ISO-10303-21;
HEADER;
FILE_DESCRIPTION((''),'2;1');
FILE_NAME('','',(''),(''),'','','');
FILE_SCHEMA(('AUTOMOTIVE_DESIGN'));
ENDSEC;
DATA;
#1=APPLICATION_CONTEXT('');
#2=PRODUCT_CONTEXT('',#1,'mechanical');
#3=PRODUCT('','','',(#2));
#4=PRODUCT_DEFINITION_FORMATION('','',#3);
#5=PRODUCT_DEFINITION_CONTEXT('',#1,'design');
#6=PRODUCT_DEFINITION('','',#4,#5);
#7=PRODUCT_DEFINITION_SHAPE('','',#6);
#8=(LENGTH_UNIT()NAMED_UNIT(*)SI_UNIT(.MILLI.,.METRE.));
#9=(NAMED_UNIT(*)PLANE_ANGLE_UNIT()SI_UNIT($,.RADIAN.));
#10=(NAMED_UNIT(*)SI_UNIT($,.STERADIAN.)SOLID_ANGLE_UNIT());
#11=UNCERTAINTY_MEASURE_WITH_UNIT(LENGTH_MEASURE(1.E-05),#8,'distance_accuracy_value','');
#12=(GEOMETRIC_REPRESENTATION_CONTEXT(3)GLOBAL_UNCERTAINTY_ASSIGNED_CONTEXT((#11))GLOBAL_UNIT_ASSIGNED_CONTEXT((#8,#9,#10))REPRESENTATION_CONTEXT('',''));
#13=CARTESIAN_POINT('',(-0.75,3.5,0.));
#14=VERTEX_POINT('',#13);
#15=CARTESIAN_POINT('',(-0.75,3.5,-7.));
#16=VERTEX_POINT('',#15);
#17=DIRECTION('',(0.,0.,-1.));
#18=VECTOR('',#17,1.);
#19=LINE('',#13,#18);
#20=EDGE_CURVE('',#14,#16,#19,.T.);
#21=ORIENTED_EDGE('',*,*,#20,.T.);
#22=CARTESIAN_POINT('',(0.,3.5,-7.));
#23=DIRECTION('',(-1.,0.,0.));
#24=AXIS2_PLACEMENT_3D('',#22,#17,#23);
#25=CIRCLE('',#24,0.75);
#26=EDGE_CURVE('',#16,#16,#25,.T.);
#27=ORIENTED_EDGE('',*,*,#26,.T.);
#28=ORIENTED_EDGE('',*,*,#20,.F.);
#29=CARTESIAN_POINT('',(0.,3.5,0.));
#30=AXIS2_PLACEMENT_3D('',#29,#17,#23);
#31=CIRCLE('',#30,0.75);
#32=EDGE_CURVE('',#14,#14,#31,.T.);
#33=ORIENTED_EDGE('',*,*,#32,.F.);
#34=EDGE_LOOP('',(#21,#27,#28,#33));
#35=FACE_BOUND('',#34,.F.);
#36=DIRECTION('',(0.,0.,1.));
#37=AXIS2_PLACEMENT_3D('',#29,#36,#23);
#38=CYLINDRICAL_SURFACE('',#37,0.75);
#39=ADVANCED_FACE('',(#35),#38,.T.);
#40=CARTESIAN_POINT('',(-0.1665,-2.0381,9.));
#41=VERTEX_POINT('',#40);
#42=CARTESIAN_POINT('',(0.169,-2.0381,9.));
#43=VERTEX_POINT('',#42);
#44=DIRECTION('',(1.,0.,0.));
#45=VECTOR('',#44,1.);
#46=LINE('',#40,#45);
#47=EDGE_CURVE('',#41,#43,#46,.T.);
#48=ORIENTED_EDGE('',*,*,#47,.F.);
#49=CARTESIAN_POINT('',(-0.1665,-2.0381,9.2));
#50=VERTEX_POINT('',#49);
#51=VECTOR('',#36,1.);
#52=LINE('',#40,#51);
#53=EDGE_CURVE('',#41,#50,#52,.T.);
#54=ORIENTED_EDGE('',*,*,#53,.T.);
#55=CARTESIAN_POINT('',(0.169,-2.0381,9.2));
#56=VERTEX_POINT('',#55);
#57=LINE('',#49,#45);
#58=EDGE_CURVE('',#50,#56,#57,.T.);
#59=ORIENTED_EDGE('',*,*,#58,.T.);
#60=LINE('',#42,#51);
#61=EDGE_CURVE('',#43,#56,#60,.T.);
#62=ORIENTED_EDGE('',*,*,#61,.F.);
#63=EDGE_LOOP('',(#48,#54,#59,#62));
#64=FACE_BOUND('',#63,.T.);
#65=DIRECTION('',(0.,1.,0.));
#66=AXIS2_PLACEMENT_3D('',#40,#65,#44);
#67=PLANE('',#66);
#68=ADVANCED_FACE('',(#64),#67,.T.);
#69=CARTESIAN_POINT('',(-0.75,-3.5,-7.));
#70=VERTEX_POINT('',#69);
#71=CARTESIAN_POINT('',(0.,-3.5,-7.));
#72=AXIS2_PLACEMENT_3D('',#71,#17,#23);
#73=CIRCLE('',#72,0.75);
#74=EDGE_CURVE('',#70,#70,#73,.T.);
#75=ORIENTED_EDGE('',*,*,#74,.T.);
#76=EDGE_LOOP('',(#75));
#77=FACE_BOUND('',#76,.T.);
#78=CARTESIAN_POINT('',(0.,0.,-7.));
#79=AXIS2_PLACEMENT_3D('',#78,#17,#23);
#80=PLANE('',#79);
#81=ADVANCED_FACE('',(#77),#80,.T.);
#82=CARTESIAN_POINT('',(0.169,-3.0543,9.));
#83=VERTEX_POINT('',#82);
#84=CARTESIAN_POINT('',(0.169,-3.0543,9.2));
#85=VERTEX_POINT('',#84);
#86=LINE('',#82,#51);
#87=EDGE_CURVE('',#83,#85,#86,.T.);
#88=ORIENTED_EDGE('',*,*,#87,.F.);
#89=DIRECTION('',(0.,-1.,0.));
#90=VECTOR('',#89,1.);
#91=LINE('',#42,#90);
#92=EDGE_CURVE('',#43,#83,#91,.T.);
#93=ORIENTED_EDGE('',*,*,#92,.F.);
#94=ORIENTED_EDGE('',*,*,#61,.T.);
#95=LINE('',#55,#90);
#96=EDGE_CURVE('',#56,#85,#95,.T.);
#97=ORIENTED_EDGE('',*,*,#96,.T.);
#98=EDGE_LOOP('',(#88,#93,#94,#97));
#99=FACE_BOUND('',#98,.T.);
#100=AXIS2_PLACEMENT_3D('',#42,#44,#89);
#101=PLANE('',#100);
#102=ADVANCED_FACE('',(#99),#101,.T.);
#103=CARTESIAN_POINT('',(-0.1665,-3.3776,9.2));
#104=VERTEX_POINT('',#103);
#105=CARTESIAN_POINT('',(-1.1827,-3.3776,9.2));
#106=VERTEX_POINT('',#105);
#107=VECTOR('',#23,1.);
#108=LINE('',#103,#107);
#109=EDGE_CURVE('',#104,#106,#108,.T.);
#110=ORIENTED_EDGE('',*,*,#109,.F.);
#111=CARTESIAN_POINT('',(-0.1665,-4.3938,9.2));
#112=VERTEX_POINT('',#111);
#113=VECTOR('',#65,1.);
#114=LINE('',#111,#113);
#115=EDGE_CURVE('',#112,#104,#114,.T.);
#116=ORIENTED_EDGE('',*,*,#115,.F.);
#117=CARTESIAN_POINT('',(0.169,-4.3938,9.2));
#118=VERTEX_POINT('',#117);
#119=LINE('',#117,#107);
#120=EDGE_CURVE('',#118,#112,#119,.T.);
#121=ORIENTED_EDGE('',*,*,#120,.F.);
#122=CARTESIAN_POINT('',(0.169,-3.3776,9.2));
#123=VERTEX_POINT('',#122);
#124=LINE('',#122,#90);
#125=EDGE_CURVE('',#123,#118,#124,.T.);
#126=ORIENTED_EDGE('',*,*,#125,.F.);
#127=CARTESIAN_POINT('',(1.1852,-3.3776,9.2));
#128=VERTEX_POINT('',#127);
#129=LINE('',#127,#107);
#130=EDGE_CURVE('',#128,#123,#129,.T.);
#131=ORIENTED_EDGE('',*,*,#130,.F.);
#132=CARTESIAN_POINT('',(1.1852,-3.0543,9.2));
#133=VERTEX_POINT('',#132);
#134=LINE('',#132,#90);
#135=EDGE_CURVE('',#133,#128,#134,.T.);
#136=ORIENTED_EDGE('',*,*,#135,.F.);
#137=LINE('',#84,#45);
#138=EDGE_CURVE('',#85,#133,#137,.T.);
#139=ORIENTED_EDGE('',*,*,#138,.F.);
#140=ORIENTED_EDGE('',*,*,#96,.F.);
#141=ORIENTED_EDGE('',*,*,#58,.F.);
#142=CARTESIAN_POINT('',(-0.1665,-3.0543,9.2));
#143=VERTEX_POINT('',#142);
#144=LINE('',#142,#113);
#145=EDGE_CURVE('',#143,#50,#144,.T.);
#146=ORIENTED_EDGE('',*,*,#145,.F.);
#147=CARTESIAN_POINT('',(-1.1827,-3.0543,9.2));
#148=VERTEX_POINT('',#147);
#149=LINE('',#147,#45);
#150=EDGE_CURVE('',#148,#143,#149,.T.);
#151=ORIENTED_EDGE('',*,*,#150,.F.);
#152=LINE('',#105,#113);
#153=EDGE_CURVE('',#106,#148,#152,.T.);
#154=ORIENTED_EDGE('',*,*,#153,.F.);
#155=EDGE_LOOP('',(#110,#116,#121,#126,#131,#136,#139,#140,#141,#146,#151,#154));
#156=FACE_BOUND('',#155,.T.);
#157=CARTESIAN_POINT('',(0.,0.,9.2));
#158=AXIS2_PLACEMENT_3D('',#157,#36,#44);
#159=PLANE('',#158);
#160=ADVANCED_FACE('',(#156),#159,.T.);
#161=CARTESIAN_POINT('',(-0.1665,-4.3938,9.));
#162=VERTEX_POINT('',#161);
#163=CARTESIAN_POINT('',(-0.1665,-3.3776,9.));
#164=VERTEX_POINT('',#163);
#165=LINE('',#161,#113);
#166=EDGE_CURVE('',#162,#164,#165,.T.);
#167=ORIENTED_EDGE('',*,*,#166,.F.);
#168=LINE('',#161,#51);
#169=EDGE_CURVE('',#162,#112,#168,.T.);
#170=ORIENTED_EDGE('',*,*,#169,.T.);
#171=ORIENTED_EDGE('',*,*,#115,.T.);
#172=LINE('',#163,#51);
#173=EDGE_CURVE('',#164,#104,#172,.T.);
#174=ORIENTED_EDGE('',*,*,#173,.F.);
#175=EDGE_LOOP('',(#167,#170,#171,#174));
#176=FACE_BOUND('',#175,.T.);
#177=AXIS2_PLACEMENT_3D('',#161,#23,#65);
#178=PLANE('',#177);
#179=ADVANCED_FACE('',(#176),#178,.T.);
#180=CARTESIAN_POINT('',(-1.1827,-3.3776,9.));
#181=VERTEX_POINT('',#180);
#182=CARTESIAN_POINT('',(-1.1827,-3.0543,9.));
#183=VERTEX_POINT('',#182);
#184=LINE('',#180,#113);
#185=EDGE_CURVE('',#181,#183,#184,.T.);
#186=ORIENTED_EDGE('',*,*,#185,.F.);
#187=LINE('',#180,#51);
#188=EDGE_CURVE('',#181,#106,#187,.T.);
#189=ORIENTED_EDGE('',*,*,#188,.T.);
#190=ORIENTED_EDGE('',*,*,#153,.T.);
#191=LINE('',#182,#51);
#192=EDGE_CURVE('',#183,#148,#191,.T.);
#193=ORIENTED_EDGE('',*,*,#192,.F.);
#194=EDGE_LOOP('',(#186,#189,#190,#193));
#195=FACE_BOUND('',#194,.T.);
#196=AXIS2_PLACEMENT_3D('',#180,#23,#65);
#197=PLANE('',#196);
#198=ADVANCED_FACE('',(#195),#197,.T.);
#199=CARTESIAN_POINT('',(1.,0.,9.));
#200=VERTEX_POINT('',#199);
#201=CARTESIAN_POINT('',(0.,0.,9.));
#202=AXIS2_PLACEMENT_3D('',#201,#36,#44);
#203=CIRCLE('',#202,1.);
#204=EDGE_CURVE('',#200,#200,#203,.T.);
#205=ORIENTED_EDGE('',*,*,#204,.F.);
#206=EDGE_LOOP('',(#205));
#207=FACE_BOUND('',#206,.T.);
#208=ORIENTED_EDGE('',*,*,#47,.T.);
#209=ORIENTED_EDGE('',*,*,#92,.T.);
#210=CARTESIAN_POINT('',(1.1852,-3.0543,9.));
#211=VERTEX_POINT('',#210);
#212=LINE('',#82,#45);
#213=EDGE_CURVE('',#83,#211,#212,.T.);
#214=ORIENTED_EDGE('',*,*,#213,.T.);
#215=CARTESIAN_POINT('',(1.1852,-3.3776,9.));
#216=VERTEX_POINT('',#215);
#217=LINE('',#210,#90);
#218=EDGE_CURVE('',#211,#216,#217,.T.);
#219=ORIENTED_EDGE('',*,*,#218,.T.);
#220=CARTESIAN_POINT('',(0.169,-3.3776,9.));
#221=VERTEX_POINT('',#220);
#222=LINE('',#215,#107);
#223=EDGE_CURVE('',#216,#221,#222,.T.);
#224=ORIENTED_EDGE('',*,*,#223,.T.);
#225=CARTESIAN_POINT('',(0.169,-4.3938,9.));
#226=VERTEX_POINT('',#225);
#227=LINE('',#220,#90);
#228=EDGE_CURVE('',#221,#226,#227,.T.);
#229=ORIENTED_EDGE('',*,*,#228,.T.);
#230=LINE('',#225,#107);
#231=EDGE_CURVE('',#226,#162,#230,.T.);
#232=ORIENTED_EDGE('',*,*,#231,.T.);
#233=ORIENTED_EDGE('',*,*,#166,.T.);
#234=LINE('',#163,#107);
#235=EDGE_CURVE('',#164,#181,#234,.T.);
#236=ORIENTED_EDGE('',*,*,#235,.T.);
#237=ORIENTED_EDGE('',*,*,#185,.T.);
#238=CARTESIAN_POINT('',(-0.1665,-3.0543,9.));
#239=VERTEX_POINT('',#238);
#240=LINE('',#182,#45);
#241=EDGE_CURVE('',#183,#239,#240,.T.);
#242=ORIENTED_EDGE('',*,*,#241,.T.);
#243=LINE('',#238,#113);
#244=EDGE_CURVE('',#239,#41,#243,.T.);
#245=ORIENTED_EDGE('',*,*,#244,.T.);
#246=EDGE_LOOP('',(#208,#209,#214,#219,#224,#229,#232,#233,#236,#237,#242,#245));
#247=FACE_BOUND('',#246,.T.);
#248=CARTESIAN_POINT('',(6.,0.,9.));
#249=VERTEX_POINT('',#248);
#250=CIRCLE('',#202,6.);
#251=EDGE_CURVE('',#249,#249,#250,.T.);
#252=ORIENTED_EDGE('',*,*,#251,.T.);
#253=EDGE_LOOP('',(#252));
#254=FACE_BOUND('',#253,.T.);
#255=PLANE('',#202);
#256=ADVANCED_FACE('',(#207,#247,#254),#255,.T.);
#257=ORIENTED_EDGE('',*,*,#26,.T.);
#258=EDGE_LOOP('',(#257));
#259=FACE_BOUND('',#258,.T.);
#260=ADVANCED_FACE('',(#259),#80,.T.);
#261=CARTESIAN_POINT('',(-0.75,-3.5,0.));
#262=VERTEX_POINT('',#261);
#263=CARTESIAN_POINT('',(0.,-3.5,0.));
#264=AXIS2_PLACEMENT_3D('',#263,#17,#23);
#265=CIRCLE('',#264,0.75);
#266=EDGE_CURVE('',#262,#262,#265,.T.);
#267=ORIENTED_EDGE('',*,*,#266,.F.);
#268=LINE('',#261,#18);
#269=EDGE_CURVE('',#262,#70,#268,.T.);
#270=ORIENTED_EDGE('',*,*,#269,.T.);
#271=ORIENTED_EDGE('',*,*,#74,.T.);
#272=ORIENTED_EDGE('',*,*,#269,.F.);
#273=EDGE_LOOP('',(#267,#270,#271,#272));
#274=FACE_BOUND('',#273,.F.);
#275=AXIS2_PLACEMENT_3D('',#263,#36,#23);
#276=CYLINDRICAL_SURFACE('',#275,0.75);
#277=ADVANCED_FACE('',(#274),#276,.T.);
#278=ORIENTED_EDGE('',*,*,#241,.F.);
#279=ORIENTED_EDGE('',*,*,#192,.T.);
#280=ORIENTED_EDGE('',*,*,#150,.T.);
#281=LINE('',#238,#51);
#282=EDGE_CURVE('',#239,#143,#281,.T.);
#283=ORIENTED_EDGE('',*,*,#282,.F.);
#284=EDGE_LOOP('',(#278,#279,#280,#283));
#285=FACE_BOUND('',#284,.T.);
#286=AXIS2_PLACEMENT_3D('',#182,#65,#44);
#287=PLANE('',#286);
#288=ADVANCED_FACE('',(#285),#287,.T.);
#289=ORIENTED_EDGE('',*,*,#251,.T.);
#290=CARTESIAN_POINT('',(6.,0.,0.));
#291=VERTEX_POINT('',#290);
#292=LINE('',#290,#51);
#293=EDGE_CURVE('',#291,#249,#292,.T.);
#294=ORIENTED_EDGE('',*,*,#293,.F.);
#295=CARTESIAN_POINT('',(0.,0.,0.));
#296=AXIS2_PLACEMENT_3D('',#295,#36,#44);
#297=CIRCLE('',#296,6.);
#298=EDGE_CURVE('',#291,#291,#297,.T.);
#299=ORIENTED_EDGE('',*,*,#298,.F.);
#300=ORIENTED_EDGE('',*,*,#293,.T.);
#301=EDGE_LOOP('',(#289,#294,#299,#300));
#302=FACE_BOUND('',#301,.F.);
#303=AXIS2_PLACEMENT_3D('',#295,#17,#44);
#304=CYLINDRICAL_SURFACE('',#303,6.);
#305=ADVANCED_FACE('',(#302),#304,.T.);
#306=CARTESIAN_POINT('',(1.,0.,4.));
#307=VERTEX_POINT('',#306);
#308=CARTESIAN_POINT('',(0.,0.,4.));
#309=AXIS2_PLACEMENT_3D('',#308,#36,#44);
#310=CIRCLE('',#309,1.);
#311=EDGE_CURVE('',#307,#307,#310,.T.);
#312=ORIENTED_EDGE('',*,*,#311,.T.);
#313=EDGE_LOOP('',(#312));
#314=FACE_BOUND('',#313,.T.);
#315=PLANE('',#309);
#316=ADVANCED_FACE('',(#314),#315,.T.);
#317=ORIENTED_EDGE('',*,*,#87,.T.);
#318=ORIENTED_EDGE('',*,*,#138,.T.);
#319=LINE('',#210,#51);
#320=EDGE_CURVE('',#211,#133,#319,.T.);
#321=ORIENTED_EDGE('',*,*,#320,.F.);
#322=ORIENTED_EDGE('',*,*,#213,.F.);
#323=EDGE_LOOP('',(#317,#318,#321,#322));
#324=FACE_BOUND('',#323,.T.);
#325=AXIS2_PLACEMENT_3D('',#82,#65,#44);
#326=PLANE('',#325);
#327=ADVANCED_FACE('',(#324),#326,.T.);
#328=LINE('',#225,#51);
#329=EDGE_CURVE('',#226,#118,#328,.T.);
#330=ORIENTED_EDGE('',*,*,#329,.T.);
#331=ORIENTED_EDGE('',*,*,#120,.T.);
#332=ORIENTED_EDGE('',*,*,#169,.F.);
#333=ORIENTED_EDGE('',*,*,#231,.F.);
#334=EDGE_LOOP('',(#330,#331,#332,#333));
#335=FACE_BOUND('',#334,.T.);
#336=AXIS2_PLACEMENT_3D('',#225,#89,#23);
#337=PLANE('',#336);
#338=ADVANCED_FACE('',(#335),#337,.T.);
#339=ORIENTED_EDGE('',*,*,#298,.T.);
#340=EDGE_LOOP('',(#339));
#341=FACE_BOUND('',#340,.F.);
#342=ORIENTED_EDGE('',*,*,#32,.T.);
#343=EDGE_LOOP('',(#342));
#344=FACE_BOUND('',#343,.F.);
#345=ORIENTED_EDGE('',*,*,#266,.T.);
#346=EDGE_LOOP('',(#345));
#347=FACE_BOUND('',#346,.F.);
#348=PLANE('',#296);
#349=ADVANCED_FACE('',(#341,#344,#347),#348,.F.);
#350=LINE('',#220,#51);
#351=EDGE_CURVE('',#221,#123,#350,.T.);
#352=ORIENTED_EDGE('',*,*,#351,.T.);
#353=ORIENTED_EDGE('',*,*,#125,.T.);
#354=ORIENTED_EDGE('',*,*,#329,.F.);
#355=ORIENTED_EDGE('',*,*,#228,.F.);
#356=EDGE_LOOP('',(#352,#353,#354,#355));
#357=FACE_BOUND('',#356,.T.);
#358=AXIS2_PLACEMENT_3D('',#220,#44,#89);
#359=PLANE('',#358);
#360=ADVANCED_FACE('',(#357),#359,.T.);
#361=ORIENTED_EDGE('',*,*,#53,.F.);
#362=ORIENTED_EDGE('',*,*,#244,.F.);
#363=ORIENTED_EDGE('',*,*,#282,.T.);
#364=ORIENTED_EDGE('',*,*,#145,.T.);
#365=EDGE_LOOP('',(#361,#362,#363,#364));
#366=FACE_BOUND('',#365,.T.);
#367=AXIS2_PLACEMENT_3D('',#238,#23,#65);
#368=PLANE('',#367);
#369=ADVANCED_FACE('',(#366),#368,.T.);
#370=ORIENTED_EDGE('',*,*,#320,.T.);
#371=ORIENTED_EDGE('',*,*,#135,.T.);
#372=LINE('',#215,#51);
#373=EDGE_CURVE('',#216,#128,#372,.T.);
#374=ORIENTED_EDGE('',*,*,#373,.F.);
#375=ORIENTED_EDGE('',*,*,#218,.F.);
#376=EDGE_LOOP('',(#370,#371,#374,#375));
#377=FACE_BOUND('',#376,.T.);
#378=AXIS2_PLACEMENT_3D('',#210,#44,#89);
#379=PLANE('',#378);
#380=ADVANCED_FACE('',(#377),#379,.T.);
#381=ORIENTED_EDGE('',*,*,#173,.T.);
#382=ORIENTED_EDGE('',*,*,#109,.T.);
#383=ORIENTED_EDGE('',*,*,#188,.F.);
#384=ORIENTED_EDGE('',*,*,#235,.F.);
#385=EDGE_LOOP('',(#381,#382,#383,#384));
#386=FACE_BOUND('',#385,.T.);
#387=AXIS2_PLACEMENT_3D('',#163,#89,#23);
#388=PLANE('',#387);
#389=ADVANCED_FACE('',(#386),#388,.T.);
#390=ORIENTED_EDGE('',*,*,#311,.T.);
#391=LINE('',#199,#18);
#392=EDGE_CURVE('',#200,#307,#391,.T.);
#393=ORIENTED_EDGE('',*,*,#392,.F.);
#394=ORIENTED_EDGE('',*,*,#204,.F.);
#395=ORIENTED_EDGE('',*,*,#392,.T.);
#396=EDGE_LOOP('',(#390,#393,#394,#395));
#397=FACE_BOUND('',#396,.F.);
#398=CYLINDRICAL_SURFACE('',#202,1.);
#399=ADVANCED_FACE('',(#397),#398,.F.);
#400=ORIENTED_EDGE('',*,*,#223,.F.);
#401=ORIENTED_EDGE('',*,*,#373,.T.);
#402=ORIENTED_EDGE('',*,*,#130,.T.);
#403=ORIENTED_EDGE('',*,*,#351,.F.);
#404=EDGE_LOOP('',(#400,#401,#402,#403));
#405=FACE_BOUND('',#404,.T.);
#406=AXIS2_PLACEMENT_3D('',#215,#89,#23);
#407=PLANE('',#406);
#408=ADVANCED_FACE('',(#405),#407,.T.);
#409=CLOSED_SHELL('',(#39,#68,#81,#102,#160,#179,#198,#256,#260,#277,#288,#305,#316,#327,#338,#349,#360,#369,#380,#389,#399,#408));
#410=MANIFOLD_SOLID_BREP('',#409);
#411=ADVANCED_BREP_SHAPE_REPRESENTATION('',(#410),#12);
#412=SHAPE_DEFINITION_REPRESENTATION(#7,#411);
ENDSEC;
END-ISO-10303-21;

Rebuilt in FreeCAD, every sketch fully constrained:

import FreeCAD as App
import Part
import Sketcher
Q = App.Units.Quantity


def add_polygon(sketch, points):
    """Adds a closed chain of lines whose ends are joined by coincident constraints."""
    first, n = sketch.GeometryCount, len(points)
    for a, b in zip(points, points[1:] + points[:1]):
        sketch.addGeometry(Part.LineSegment(App.Vector(*a, 0), App.Vector(*b, 0)), False)
    for i in range(n):
        sketch.addConstraint(Sketcher.Constraint("Coincident", first + i, 2, first + (i + 1) % n, 1))

doc = App.newDocument("Part")
params = doc.addObject("Spreadsheet::Sheet", "Params")
for row, (alias, value) in enumerate([
    ("sketch1_diameter", "12 mm"),
    ("pad1_length", "9 mm"),
    ("sketch2_diameter", "2 mm"),
    ("pocket1_length", "5 mm"),
    ("pad2_length", "0.2 mm"),
    ("sketch4_diameter", "1.5 mm"),
    ("pad3_length", "7 mm"),
], start=1):
    params.set(f"A{row}", alias)
    params.set(f"B{row}", "=" + value)
    params.setAlias(f"B{row}", alias)

body = doc.addObject("PartDesign::Body", "Body")

sketch1 = doc.addObject("Sketcher::SketchObject", "Sketch")
body.addObject(sketch1)
sketch1.AttachmentSupport = (doc.XY_Plane, [""])
sketch1.MapMode = "FlatFace"
sketch1.addGeometry(Part.Circle(App.Vector(0, 0, 0), App.Vector(0, 0, 1), 6), False)
sketch1.addConstraint(Sketcher.Constraint("Coincident", 0, 3, -1, 1))
sketch1.addConstraint(Sketcher.Constraint("Diameter", 0, Q("12 mm")))
sketch1.setExpression("Constraints[1]", "Params.sketch1_diameter")
pad1 = doc.addObject("PartDesign::Pad", "Pad")
body.addObject(pad1)
pad1.Profile = sketch1
pad1.setExpression("Length", "Params.pad1_length")

sketch2 = doc.addObject("Sketcher::SketchObject", "Sketch001")
body.addObject(sketch2)
sketch2.AttachmentSupport = (doc.XY_Plane, [""])
sketch2.MapMode = "FlatFace"
sketch2.AttachmentOffset = App.Placement(App.Vector(0, 0, 9), App.Rotation())
sketch2.addGeometry(Part.Circle(App.Vector(0, 0, 0), App.Vector(0, 0, 1), 1), False)
sketch2.addConstraint(Sketcher.Constraint("Coincident", 0, 3, -1, 1))
sketch2.addConstraint(Sketcher.Constraint("Diameter", 0, Q("2 mm")))
sketch2.setExpression("Constraints[1]", "Params.sketch2_diameter")
pocket1 = doc.addObject("PartDesign::Pocket", "Pocket")
body.addObject(pocket1)
pocket1.Profile = sketch2
pocket1.setExpression("Length", "Params.pocket1_length")

sketch3 = doc.addObject("Sketcher::SketchObject", "Sketch002")
body.addObject(sketch3)
sketch3.AttachmentSupport = (doc.XY_Plane, [""])
sketch3.MapMode = "FlatFace"
sketch3.AttachmentOffset = App.Placement(App.Vector(0, 0, 9), App.Rotation())
add_polygon(sketch3, [(0.17, -3.38), (1.19, -3.38), (1.19, -3.05), (0.17, -3.05), (0.17, -2.04), (-0.17, -2.04), (-0.17, -3.05), (-1.18, -3.05), (-1.18, -3.38), (-0.17, -3.38), (-0.17, -4.39), (0.17, -4.39)])
sketch3.addConstraint(Sketcher.Constraint("Horizontal", 0))
sketch3.addConstraint(Sketcher.Constraint("Vertical", 1))
sketch3.addConstraint(Sketcher.Constraint("Horizontal", 2))
sketch3.addConstraint(Sketcher.Constraint("Vertical", 3))
sketch3.addConstraint(Sketcher.Constraint("Horizontal", 4))
sketch3.addConstraint(Sketcher.Constraint("Vertical", 5))
sketch3.addConstraint(Sketcher.Constraint("Horizontal", 6))
sketch3.addConstraint(Sketcher.Constraint("Vertical", 7))
sketch3.addConstraint(Sketcher.Constraint("Horizontal", 8))
sketch3.addConstraint(Sketcher.Constraint("Vertical", 9))
sketch3.addConstraint(Sketcher.Constraint("Horizontal", 10))
sketch3.addConstraint(Sketcher.Constraint("Vertical", 11))
sketch3.addConstraint(Sketcher.Constraint("Horizontal", 2, 2, 5, 2))
sketch3.addConstraint(Sketcher.Constraint("Horizontal", 0, 2, 7, 2))
sketch3.addConstraint(Sketcher.Constraint("Vertical", 5, 2, 8, 2))
sketch3.addConstraint(Sketcher.Constraint("Vertical", 3, 2, 10, 2))
sketch3.addConstraint(Sketcher.Constraint("Equal", 2, 6))
sketch3.addConstraint(Sketcher.Constraint("Equal", 8, 3))
sketch3.addConstraint(Sketcher.Constraint("Equal", 5, 9))
sketch3.addConstraint(Sketcher.Constraint("DistanceX", 0, 1, 0, 2, Q("1.0162 mm")))
sketch3.addConstraint(Sketcher.Constraint("DistanceX", 4, 2, 4, 1, Q("0.3355 mm")))
sketch3.addConstraint(Sketcher.Constraint("DistanceY", 1, 1, 1, 2, Q("0.3233 mm")))
sketch3.addConstraint(Sketcher.Constraint("DistanceX", -1, 1, 2, 2, Q("0.169 mm")))
sketch3.addConstraint(Sketcher.Constraint("DistanceY", 3, 2, -1, 1, Q("2.038 mm")))
pad2 = doc.addObject("PartDesign::Pad", "Pad001")
body.addObject(pad2)
pad2.Profile = sketch3
pad2.setExpression("Length", "Params.pad2_length")

sketch4 = doc.addObject("Sketcher::SketchObject", "Sketch003")
body.addObject(sketch4)
sketch4.AttachmentSupport = (doc.XY_Plane, [""])
sketch4.MapMode = "FlatFace"
sketch4.addGeometry(Part.Circle(App.Vector(0, 3.5, 0), App.Vector(0, 0, 1), 0.8), False)
sketch4.addGeometry(Part.Circle(App.Vector(0, -3.5, 0), App.Vector(0, 0, 1), 0.8), False)
sketch4.addConstraint(Sketcher.Constraint("Equal", 0, 1))
sketch4.addConstraint(Sketcher.Constraint("Symmetric", 0, 3, 1, 3, -1, 1))
sketch4.addConstraint(Sketcher.Constraint("PointOnObject", 0, 3, -2))
sketch4.addConstraint(Sketcher.Constraint("Diameter", 0, Q("1.5 mm")))
sketch4.addConstraint(Sketcher.Constraint("DistanceY", 1, 3, 0, 3, Q("7 mm")))
sketch4.setExpression("Constraints[3]", "Params.sketch4_diameter")
pad3 = doc.addObject("PartDesign::Pad", "Pad002")
body.addObject(pad3)
pad3.Profile = sketch4
pad3.setExpression("Length", "Params.pad3_length")
pad3.Reversed = True

doc.recompute()
